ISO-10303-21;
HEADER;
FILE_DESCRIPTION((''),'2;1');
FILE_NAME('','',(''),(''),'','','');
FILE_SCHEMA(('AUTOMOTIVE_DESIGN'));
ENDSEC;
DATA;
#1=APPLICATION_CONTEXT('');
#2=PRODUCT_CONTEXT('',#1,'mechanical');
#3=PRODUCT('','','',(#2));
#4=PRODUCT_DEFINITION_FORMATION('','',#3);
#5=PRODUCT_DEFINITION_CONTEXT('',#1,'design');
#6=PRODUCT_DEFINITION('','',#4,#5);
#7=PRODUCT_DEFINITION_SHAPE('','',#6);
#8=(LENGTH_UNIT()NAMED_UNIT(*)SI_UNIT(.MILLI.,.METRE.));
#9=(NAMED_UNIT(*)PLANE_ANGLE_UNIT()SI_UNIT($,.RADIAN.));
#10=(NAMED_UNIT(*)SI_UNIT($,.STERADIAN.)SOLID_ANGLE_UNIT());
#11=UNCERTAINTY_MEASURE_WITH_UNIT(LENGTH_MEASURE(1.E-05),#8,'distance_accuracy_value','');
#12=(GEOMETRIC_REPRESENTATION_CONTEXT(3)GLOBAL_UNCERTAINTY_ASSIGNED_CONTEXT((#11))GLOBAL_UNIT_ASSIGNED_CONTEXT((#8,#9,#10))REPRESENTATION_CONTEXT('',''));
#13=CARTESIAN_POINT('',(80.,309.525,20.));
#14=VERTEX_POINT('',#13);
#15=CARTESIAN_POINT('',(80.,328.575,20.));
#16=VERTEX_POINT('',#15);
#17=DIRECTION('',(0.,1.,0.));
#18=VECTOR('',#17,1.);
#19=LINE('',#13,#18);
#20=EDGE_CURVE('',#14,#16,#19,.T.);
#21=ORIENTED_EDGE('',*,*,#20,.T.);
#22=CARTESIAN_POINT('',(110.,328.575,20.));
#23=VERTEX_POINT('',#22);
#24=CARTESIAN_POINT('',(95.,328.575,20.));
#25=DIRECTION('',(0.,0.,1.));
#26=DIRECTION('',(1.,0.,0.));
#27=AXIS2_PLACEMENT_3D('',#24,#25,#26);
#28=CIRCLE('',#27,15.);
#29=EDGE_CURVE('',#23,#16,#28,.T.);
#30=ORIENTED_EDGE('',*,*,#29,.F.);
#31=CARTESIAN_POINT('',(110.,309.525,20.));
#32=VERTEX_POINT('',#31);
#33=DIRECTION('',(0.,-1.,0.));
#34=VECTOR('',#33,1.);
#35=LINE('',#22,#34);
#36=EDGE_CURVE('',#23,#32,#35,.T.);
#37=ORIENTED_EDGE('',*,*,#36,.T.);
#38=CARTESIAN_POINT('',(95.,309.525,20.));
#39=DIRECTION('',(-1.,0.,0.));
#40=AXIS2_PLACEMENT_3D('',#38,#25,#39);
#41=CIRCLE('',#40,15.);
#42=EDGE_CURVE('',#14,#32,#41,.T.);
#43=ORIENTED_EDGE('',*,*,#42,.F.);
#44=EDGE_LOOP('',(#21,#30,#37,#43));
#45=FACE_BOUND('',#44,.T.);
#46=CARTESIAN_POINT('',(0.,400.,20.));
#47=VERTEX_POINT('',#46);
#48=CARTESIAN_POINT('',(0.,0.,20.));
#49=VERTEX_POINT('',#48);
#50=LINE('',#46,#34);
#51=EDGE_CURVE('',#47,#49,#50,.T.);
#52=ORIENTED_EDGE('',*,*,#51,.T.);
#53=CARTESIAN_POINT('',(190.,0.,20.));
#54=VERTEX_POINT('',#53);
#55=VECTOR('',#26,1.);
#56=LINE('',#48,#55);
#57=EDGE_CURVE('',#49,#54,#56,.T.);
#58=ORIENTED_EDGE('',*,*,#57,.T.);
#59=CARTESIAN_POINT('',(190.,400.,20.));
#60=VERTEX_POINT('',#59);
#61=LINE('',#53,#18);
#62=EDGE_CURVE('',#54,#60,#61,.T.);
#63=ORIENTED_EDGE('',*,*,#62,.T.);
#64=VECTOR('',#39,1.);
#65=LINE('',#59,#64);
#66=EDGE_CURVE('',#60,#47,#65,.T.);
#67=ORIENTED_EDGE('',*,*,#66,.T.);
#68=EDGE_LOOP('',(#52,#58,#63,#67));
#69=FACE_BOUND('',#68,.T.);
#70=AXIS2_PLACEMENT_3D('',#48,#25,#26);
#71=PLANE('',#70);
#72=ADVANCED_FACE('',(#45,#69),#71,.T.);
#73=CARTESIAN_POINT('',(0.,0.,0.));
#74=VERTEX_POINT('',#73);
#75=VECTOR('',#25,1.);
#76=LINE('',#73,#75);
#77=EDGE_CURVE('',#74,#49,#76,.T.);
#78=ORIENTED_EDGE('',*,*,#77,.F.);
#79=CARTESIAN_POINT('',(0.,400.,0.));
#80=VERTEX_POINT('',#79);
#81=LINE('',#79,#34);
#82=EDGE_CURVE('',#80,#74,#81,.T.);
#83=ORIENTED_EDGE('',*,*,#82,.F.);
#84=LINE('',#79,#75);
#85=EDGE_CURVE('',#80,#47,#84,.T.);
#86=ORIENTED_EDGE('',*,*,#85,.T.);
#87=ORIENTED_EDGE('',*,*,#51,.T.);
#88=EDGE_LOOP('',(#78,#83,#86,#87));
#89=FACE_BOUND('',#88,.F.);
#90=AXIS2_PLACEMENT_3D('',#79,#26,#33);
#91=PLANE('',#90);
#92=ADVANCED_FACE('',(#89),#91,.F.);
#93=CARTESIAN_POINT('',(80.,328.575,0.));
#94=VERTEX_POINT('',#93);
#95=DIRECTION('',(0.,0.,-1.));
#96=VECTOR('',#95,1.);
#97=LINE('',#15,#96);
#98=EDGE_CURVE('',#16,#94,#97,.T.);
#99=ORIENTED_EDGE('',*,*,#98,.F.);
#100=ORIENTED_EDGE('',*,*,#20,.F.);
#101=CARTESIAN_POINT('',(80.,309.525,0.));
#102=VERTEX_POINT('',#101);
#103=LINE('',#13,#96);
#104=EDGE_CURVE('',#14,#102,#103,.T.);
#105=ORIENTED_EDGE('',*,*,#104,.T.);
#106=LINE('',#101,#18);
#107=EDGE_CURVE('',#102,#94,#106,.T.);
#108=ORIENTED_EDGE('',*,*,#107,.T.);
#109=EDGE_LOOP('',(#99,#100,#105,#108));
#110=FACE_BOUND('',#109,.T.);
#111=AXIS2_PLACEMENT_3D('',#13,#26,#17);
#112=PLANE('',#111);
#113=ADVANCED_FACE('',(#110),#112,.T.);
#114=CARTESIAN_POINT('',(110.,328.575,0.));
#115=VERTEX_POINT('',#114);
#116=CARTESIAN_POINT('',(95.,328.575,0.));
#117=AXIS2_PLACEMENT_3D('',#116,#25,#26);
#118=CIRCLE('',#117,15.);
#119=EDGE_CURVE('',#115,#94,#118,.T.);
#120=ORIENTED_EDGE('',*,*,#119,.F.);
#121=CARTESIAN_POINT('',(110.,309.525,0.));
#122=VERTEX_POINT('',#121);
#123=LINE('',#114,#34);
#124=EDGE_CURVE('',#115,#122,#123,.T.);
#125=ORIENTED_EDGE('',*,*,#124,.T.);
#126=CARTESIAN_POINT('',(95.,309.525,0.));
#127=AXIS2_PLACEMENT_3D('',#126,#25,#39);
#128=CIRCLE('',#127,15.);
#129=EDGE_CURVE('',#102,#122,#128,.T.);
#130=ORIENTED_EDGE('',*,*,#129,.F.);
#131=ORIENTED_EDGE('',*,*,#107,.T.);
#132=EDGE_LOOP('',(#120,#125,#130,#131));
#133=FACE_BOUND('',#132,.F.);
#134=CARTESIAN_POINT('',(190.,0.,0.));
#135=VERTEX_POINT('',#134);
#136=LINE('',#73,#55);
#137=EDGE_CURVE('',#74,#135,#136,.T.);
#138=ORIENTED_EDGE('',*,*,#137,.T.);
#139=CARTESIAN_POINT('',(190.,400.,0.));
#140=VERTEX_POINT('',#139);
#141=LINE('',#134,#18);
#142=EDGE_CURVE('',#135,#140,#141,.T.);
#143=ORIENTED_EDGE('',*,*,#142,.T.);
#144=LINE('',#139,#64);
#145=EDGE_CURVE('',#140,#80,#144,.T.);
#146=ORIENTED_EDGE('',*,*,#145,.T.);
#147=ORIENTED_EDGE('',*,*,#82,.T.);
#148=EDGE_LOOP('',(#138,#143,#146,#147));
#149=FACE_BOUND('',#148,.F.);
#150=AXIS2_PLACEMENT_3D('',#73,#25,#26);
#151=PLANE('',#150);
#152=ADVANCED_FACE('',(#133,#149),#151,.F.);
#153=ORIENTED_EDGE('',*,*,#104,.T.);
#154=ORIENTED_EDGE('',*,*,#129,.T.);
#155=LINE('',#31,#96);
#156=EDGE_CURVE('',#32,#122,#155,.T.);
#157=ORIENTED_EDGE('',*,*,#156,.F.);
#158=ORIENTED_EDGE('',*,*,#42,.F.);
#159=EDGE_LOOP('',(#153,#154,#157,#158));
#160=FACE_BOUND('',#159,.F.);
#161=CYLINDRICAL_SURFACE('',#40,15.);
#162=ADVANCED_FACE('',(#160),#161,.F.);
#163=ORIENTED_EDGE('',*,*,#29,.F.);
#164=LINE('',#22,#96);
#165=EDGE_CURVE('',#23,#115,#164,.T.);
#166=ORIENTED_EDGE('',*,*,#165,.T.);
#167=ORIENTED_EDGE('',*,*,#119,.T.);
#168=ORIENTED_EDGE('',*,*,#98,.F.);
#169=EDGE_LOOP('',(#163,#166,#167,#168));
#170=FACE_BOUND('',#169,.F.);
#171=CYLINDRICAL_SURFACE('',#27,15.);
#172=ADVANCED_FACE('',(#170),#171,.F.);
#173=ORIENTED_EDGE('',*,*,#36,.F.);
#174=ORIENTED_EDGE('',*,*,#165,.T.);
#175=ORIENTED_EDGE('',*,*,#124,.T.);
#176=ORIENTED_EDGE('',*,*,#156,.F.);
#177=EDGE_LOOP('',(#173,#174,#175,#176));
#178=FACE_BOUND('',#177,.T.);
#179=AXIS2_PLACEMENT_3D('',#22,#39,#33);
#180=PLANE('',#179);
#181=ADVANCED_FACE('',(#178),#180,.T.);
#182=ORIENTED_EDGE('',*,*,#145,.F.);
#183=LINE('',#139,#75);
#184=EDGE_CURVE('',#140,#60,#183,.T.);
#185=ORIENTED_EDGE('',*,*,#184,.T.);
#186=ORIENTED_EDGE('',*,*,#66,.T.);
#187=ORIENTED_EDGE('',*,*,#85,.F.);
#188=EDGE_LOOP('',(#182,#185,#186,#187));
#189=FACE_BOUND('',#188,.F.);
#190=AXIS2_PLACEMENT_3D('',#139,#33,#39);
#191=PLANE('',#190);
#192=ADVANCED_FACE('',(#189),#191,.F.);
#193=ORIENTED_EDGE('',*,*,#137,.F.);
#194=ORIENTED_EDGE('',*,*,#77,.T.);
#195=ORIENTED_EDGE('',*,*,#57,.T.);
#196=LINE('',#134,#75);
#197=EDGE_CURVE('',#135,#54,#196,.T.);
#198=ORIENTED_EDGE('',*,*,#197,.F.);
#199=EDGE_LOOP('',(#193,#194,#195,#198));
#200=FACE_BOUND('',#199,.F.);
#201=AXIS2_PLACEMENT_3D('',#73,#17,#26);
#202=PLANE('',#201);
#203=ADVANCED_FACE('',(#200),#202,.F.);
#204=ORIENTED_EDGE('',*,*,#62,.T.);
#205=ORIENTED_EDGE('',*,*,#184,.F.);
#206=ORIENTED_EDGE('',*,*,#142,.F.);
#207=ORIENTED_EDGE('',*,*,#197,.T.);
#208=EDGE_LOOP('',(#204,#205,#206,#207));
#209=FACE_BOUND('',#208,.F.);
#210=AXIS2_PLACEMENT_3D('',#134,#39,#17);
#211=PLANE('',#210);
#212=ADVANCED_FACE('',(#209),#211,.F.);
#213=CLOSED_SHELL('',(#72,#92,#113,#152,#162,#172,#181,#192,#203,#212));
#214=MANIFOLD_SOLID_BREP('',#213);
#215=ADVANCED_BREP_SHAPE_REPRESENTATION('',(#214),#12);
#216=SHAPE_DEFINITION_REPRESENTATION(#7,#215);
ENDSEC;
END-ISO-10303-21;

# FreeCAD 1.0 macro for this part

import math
import FreeCAD as App
import Part
import Sketcher
from FreeCAD import Vector

doc = App.newDocument("Part")
body = doc.addObject("PartDesign::Body", "Body")

# Sketch on XY plane
sketch1 = body.newObject("Sketcher::SketchObject", "Sketch")
sketch1.AttachmentSupport = (doc.getObject("XY_Plane"), [""])
sketch1.MapMode = "FlatFace"
sketch1.addGeometry([
    Part.LineSegment(Vector(0, 400, 0), Vector(0, 0, 0)),
    Part.LineSegment(Vector(0, 0, 0), Vector(190, 0, 0)),
    Part.LineSegment(Vector(190, 0, 0), Vector(190, 400, 0)),
    Part.LineSegment(Vector(190, 400, 0), Vector(0, 400, 0)),
], False)
sketch1.addConstraint([
    Sketcher.Constraint("Coincident", 0, 2, 1, 1),
    Sketcher.Constraint("Coincident", 1, 2, 2, 1),
    Sketcher.Constraint("Coincident", 2, 2, 3, 1),
    Sketcher.Constraint("Coincident", 3, 2, 0, 1),
    Sketcher.Constraint("Vertical", 0),
    Sketcher.Constraint("Horizontal", 1),
    Sketcher.Constraint("Vertical", 2),
    Sketcher.Constraint("Horizontal", 3),
    Sketcher.Constraint("Coincident", 0, 2, -1, 1),
    Sketcher.Constraint("DistanceX", 1, 1, 1, 2, 190.0),
    Sketcher.Constraint("DistanceY", 0, 2, 0, 1, 400.0),
])
pad1 = body.newObject("PartDesign::Pad", "Pad")
pad1.Profile = sketch1
pad1.Length = 20

# Sketch on XY plane
sketch2 = body.newObject("Sketcher::SketchObject", "Sketch001")
sketch2.AttachmentSupport = (doc.getObject("XY_Plane"), [""])
sketch2.MapMode = "FlatFace"
sketch2.AttachmentOffset = App.Placement(Vector(0, 0, 20), App.Rotation())
sketch2.addGeometry([
    Part.LineSegment(Vector(80, 329, 0), Vector(80, 310, 0)),
    Part.ArcOfCircle(Part.Circle(Vector(95, 310, 0), Vector(0, 0, 1), 15), math.radians(180), math.radians(360)),
    Part.LineSegment(Vector(110, 310, 0), Vector(110, 329, 0)),
    Part.ArcOfCircle(Part.Circle(Vector(95, 329, 0), Vector(0, 0, 1), 15), math.radians(0), math.radians(180)),
], False)
sketch2.addConstraint([
    Sketcher.Constraint("Tangent", 0, 2, 1, 1),
    Sketcher.Constraint("Tangent", 1, 2, 2, 1),
    Sketcher.Constraint("Tangent", 2, 2, 3, 1),
    Sketcher.Constraint("Tangent", 3, 2, 0, 1),
    Sketcher.Constraint("Vertical", 0),
    Sketcher.Constraint("Vertical", 2),
    Sketcher.Constraint("Radius", 1, 15.0),
    Sketcher.Constraint("DistanceX", -1, 1, 1, 3, 95.0),
    Sketcher.Constraint("DistanceY", 0, 2, 0, 1, 19.05),
    Sketcher.Constraint("DistanceY", -1, 1, 1, 3, 309.525),
])
pocket1 = body.newObject("PartDesign::Pocket", "Pocket")
pocket1.Profile = sketch2
pocket1.Length = 20

doc.recompute()
